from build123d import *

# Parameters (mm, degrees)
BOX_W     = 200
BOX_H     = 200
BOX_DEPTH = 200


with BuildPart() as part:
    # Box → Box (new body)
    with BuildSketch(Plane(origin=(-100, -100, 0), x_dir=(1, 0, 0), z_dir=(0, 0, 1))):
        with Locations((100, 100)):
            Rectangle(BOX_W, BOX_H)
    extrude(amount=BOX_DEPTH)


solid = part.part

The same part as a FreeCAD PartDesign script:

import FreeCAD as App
import Part
import Sketcher

V = App.Vector
Q = App.Units.Quantity

doc = App.newDocument("Part")
body = doc.addObject("PartDesign::Body", "Body")

# Sketch on XY plane
sketch1 = body.newObject("Sketcher::SketchObject", "Sketch")
sketch1.AttachmentSupport = (doc.getObject("XY_Plane"), [""])
sketch1.MapMode = "FlatFace"
sketch1.addGeometry([
    Part.LineSegment(V(-100, 100, 0), V(-100, -100, 0)),
    Part.LineSegment(V(-100, -100, 0), V(100, -100, 0)),
    Part.LineSegment(V(100, -100, 0), V(100, 100, 0)),
    Part.LineSegment(V(100, 100, 0), V(-100, 100, 0)),
], False)
sketch1.addConstraint([
    Sketcher.Constraint("Coincident", 0, 2, 1, 1),
    Sketcher.Constraint("Coincident", 1, 2, 2, 1),
    Sketcher.Constraint("Coincident", 2, 2, 3, 1),
    Sketcher.Constraint("Coincident", 3, 2, 0, 1),
    Sketcher.Constraint("Vertical", 0),
    Sketcher.Constraint("Horizontal", 1),
    Sketcher.Constraint("Vertical", 2),
    Sketcher.Constraint("Horizontal", 3),
    Sketcher.Constraint("Symmetric", 0, 2, 2, 2, -1, 1),
    Sketcher.Constraint("Equal", 3, 0),
    Sketcher.Constraint("DistanceX", 1, 1, 1, 2, Q("200 mm")),
])
pad1 = body.newObject("PartDesign::Pad", "Pad")
pad1.Profile = sketch1
pad1.Length = 200

doc.recompute()
